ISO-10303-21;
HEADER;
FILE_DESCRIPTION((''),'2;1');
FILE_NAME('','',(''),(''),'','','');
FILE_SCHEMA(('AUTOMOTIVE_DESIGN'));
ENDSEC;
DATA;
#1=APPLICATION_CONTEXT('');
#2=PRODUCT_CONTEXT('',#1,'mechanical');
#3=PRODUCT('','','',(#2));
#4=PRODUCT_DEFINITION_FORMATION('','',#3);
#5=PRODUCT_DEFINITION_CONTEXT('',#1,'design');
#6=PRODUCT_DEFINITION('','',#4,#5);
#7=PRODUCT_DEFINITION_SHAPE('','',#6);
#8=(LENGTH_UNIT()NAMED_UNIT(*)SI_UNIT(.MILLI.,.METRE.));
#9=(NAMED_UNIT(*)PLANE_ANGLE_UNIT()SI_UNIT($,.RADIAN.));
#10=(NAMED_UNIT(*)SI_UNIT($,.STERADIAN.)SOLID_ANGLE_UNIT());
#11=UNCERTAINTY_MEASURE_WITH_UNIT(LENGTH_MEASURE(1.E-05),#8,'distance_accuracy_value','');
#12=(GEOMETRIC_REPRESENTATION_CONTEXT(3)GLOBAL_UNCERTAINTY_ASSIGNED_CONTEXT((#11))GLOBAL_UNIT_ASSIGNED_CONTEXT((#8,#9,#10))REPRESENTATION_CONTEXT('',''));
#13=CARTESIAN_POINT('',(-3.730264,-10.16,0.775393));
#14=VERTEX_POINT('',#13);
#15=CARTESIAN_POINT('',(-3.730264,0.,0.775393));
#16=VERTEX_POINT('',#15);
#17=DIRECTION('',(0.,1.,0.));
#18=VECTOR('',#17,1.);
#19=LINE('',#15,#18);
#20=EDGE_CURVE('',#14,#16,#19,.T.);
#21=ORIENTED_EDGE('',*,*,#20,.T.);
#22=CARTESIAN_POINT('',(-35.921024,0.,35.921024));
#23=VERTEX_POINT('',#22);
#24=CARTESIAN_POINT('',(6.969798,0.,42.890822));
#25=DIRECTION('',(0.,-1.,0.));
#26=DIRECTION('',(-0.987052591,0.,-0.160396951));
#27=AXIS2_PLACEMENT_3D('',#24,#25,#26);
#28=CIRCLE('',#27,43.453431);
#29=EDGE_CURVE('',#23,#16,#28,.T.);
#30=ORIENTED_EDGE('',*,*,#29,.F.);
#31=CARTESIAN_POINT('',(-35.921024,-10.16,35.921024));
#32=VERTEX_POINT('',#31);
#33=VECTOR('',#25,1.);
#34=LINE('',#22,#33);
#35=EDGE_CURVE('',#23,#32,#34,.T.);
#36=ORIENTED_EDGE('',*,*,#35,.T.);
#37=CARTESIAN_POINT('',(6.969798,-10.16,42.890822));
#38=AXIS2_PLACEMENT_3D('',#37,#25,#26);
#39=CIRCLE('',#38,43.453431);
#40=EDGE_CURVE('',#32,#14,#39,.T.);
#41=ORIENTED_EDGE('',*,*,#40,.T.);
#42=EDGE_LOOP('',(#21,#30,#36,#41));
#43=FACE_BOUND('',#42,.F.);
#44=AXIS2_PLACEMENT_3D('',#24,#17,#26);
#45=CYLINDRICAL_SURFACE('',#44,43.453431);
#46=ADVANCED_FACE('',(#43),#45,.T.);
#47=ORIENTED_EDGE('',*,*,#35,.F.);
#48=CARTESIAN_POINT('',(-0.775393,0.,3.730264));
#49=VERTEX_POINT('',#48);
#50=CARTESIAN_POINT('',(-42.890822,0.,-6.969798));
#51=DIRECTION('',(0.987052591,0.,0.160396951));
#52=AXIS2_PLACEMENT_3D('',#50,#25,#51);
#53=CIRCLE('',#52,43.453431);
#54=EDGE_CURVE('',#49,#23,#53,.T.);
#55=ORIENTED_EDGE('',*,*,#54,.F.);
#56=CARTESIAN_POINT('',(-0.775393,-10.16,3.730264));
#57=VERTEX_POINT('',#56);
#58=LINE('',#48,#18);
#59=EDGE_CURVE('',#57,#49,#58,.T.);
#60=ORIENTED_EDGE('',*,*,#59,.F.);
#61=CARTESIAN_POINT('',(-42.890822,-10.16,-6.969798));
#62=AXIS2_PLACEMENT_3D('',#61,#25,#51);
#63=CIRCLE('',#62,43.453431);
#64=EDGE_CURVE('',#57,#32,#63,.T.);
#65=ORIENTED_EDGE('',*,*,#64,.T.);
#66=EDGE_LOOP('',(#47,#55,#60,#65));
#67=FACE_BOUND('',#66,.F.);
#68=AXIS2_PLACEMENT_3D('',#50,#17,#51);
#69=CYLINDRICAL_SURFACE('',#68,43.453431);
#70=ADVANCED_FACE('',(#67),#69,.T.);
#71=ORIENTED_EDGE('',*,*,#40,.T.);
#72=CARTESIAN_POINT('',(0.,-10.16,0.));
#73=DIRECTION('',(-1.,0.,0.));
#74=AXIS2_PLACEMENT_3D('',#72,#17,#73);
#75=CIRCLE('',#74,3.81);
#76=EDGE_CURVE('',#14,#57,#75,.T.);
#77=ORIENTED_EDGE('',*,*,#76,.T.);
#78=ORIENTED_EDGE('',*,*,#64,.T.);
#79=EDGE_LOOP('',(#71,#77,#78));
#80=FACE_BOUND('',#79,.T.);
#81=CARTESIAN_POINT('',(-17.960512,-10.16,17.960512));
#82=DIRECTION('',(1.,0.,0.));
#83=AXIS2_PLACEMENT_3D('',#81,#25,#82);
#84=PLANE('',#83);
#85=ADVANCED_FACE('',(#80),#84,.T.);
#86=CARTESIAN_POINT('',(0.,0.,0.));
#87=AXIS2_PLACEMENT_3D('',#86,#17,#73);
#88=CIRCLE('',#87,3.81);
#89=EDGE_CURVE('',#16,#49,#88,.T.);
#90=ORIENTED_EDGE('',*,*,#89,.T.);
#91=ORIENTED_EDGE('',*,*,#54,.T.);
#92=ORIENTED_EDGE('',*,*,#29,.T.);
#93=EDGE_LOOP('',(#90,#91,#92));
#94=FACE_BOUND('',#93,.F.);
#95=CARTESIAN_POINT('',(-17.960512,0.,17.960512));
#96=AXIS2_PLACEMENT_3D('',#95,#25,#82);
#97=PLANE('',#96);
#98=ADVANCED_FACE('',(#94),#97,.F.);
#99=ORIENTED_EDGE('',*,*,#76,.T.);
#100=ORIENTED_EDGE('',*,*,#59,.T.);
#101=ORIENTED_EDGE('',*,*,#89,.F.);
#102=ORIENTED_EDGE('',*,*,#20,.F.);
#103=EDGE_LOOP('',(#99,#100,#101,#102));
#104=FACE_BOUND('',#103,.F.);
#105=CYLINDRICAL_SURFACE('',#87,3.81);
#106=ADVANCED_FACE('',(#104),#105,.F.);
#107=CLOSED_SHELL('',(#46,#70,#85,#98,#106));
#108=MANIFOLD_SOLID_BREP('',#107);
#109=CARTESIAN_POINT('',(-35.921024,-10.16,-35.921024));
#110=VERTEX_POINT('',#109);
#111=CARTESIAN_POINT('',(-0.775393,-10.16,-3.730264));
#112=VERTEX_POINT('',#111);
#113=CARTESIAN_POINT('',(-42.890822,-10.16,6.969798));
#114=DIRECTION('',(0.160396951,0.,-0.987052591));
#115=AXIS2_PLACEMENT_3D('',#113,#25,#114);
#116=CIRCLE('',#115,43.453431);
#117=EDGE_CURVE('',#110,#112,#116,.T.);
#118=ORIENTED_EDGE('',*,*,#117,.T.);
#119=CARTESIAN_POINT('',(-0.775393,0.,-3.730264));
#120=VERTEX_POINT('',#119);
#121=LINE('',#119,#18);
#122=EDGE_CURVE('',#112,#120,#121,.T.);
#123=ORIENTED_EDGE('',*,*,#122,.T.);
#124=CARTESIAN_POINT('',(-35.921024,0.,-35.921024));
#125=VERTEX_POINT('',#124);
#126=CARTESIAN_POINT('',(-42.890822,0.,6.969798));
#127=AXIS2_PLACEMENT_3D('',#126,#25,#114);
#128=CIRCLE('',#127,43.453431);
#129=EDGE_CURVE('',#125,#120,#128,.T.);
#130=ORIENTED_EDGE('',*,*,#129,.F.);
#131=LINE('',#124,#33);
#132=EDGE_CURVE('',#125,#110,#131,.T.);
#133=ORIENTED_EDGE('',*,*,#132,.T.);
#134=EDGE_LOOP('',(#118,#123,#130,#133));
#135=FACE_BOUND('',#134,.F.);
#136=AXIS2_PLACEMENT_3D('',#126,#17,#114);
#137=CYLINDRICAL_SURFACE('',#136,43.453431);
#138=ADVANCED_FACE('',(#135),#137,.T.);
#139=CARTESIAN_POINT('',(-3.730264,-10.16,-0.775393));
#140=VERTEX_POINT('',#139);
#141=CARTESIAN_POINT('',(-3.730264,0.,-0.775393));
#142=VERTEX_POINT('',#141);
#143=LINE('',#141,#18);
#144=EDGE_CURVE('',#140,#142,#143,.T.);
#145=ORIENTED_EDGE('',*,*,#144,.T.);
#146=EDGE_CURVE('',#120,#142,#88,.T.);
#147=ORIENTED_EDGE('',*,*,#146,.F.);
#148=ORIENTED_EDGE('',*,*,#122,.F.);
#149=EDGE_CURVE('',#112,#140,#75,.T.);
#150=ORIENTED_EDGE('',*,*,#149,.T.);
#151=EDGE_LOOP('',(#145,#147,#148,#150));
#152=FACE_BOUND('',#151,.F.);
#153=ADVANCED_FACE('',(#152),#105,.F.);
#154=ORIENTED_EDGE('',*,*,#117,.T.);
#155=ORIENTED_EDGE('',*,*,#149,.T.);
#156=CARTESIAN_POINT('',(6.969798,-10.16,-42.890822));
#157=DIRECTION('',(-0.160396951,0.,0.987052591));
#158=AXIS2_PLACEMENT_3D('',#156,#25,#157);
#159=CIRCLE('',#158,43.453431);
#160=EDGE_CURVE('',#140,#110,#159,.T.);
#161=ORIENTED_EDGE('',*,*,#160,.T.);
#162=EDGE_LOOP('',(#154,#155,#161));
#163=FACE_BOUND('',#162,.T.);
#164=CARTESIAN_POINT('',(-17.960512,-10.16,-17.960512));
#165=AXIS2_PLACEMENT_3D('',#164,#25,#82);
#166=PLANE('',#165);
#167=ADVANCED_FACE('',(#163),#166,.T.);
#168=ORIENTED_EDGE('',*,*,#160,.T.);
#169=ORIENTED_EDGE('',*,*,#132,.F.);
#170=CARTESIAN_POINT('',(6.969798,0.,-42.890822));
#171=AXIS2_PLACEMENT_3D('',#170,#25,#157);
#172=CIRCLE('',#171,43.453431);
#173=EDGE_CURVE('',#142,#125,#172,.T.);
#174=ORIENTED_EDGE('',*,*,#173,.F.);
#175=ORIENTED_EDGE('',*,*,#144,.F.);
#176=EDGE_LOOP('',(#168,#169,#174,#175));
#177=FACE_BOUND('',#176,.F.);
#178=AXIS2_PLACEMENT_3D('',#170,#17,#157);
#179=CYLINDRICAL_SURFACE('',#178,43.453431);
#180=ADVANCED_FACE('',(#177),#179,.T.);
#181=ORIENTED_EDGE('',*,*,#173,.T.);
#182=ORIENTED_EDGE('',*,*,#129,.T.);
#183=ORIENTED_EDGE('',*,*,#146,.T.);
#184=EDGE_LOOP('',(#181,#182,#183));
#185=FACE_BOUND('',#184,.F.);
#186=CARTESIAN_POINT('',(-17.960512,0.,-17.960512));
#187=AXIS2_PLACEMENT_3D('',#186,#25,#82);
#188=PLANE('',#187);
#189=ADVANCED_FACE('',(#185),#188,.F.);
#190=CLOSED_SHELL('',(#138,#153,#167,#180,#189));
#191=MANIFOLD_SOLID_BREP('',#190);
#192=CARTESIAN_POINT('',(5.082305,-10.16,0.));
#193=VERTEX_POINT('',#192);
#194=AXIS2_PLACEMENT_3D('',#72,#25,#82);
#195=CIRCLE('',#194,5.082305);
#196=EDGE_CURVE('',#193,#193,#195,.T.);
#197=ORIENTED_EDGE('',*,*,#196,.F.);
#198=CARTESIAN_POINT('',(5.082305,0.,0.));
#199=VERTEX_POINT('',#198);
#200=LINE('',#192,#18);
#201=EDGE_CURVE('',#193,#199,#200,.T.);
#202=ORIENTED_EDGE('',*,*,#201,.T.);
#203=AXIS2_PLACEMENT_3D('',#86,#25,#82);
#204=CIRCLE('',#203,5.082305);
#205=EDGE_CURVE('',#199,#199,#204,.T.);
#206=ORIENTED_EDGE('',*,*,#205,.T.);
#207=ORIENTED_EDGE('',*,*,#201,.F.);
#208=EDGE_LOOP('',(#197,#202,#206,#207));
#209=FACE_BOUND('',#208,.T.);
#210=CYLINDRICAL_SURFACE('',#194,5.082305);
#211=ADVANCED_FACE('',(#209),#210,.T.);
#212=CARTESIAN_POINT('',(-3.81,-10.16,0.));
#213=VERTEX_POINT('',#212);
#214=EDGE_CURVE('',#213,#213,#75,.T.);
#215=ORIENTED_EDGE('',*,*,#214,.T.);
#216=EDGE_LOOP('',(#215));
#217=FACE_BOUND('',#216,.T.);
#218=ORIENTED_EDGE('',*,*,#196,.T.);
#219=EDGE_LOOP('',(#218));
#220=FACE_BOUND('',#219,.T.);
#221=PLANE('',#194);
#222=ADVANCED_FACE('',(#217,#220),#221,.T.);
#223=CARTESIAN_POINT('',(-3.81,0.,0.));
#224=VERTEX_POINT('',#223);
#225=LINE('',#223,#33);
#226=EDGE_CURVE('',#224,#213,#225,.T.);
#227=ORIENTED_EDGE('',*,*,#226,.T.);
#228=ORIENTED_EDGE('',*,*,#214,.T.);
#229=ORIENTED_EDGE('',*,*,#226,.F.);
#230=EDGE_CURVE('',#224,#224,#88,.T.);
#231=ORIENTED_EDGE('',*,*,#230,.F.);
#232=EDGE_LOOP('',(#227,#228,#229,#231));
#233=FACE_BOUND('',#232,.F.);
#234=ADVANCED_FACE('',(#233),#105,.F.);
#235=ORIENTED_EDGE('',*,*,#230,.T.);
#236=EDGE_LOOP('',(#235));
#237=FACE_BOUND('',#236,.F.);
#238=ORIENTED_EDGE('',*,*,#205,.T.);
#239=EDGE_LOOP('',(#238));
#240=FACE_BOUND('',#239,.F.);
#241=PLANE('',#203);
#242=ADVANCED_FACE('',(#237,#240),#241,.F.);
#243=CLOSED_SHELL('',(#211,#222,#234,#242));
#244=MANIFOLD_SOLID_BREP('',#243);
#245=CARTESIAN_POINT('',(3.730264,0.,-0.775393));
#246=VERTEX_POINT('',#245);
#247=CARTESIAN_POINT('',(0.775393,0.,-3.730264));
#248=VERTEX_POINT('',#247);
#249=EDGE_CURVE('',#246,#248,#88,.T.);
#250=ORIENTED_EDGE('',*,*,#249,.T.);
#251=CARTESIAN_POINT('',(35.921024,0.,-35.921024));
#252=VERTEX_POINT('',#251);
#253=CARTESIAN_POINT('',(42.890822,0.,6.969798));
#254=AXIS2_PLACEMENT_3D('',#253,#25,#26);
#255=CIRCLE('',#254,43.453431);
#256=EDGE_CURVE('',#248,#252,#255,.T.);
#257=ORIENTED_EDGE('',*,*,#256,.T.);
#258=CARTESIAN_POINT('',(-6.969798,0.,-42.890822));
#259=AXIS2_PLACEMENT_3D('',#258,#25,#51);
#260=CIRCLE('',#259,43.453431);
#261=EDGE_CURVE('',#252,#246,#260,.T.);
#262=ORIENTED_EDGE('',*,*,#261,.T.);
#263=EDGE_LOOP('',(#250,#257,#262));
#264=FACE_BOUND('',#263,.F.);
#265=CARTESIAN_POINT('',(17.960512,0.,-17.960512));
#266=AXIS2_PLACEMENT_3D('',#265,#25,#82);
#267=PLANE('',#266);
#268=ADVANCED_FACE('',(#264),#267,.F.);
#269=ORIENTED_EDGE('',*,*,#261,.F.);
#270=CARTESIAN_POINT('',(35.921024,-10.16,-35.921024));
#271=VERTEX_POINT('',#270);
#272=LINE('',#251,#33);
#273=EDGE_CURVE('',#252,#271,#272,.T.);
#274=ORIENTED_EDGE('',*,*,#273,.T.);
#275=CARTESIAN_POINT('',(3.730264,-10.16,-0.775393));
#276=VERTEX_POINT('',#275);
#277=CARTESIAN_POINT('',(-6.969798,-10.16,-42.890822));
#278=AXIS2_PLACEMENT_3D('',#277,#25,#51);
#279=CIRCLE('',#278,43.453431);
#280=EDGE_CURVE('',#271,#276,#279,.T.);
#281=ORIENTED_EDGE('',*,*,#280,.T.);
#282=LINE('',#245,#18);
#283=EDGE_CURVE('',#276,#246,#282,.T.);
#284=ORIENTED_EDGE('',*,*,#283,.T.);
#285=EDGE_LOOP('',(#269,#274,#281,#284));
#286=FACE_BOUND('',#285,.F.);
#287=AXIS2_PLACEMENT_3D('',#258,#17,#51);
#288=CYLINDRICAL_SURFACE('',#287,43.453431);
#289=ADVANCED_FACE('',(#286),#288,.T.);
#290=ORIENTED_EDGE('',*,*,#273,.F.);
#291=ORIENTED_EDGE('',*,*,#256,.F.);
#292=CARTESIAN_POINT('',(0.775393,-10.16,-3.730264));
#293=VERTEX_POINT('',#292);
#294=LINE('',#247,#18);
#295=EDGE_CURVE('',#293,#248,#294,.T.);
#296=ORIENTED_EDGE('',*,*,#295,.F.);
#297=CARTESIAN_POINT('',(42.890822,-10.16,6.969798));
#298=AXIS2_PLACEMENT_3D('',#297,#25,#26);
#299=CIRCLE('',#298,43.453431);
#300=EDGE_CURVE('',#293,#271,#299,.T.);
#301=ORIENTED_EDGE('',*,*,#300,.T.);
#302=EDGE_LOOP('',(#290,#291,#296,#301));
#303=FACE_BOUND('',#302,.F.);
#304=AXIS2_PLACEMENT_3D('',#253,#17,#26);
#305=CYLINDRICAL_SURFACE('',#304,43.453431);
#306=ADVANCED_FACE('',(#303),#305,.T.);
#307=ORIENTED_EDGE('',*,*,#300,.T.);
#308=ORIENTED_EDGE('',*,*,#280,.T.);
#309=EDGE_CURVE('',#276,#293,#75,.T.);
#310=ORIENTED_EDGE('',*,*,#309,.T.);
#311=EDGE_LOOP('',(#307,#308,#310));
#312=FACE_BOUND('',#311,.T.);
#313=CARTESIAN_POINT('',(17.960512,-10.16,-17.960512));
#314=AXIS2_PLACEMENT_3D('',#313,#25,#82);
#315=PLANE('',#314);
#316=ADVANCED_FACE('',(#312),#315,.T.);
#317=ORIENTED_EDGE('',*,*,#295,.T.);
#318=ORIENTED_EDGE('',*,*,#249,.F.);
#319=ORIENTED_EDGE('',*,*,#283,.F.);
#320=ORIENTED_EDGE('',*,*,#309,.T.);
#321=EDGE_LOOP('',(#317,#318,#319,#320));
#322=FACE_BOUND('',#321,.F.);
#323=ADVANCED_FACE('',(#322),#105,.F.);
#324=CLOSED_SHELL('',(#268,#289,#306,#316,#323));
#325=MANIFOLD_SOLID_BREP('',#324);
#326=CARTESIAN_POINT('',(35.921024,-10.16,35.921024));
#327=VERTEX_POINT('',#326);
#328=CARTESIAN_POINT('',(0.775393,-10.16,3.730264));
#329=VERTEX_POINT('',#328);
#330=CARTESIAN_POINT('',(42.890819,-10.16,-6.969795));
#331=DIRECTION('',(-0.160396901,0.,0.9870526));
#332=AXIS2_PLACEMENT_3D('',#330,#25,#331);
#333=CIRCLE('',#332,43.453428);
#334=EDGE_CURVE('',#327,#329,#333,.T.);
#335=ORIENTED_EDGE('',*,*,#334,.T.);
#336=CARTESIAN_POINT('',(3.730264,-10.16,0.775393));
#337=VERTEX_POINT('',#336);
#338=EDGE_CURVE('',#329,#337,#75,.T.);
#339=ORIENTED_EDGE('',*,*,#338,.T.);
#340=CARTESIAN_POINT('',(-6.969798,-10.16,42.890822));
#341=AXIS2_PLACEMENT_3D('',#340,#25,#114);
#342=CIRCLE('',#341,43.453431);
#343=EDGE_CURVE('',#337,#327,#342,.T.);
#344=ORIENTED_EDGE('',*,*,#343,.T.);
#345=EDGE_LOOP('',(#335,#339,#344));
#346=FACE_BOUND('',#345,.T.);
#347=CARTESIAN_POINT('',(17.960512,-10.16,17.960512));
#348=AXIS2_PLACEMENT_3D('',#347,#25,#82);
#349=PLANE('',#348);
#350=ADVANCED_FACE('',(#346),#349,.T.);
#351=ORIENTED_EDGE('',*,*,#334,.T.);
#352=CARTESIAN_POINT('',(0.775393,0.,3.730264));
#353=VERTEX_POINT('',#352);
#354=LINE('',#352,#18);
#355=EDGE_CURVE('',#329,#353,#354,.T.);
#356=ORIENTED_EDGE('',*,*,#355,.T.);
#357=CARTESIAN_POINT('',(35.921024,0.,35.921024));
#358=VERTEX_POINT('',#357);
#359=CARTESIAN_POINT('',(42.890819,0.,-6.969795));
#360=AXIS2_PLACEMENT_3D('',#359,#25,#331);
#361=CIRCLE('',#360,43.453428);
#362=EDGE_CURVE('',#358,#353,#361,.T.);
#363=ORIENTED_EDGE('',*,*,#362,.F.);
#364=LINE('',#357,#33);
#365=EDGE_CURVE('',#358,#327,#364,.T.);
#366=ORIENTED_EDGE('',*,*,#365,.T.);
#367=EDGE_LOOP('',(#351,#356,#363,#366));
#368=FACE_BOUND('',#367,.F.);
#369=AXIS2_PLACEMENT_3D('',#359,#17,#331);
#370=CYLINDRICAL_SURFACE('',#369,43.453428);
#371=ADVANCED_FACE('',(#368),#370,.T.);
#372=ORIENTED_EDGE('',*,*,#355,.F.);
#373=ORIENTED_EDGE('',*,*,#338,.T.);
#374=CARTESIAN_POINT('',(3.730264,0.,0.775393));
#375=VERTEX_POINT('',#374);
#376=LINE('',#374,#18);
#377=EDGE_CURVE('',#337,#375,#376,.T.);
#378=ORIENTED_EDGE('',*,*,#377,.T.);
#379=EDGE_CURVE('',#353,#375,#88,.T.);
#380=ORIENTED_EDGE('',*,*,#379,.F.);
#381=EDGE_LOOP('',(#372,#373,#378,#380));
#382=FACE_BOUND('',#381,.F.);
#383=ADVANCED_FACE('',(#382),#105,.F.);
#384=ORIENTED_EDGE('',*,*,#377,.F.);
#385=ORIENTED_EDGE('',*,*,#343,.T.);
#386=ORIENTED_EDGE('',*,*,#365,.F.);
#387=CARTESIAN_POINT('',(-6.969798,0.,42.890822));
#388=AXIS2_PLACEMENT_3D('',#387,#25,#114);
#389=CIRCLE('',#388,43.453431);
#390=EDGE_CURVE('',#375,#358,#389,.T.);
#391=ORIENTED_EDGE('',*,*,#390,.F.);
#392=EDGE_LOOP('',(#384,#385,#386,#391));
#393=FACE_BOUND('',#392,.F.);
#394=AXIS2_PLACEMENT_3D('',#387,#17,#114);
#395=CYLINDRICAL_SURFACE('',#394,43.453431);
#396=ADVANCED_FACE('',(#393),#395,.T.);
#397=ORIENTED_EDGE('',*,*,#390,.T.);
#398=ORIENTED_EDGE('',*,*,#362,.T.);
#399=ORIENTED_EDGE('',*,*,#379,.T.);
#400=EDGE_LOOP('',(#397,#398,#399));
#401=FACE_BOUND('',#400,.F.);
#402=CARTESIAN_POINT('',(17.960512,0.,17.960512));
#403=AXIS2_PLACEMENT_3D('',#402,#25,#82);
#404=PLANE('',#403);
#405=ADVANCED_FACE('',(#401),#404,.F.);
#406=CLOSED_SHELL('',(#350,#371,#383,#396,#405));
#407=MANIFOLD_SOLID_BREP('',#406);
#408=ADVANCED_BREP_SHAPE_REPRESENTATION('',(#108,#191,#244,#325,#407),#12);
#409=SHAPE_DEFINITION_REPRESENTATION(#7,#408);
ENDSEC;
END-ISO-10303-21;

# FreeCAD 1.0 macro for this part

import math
import FreeCAD as App
import Part
import Sketcher
Q = App.Units.Quantity

doc = App.newDocument("Part")
params = doc.addObject("Spreadsheet::Sheet", "Params")
for row, (alias, value) in enumerate([
    ("pad1_length", "0.4 in"),
    ("pad2_length", "0.4 in"),
    ("sketch3_diameter", "0.3 in"),
    ("pad3_length", "1.47 in"),
], start=1):
    params.set(f"A{row}", alias)
    params.set(f"B{row}", "=" + value)
    params.setAlias(f"B{row}", alias)

body = doc.addObject("PartDesign::Body", "Body")
body.AllowCompound = True

# Sketch on XZ plane
sketch1 = body.newObject("Sketcher::SketchObject", "Sketch")
sketch1.AttachmentSupport = (doc.getObject("XZ_Plane"), [""])
sketch1.MapMode = "FlatFace"
sketch1.addGeometry([
    Part.ArcOfCircle(Part.Circle(App.Vector(-6.969798, 42.890822, 0), App.Vector(0, 0, 1), 43.453431), math.radians(-80.770063), math.radians(-9.229937)),  # 0
    Part.ArcOfCircle(Part.Circle(App.Vector(42.890819, -6.969795, 0), App.Vector(0, 0, 1), 43.453428), math.radians(99.229935), math.radians(170.770065)),  # 1
    Part.ArcOfCircle(Part.Circle(App.Vector(-42.890822, 6.969798, 0), App.Vector(0, 0, 1), 43.453431), math.radians(-80.770063), math.radians(-9.229937)),  # 2
    Part.ArcOfCircle(Part.Circle(App.Vector(6.969798, -42.890822, 0), App.Vector(0, 0, 1), 43.453431), math.radians(99.229937), math.radians(170.770063)),  # 3
    Part.ArcOfCircle(Part.Circle(App.Vector(-42.890822, -6.969798, 0), App.Vector(0, 0, 1), 43.453431), math.radians(9.229937), math.radians(80.770063)),  # 4
    Part.ArcOfCircle(Part.Circle(App.Vector(6.969798, 42.890822, 0), App.Vector(0, 0, 1), 43.453431), math.radians(-170.770063), math.radians(-99.229937)),  # 5
    Part.ArcOfCircle(Part.Circle(App.Vector(42.890822, 6.969798, 0), App.Vector(0, 0, 1), 43.453431), math.radians(-170.770063), math.radians(-99.229937)),  # 6
    Part.ArcOfCircle(Part.Circle(App.Vector(-6.969798, -42.890822, 0), App.Vector(0, 0, 1), 43.453431), math.radians(9.229937), math.radians(80.770063)),  # 7
], False)
sketch1.addConstraint([
    Sketcher.Constraint("Coincident", 0, 1, 1, 2),
    Sketcher.Constraint("Coincident", 1, 1, 0, 2),
    Sketcher.Constraint("Coincident", 2, 1, 3, 2),
    Sketcher.Constraint("Coincident", 3, 1, 2, 2),
    Sketcher.Constraint("Coincident", 4, 1, 5, 2),
    Sketcher.Constraint("Coincident", 5, 1, 4, 2),
    Sketcher.Constraint("Coincident", 6, 1, 7, 2),
    Sketcher.Constraint("Coincident", 7, 1, 6, 2),
    Sketcher.Constraint("Coincident", 0, 1, -1, 1),
    Sketcher.Constraint("Coincident", 3, 1, -1, 1),
    Sketcher.Constraint("Coincident", 4, 1, -1, 1),
    Sketcher.Constraint("Coincident", 6, 1, -1, 1),
    Sketcher.Constraint("Equal", 0, 2),
    Sketcher.Constraint("Equal", 2, 3),
    Sketcher.Constraint("Equal", 3, 4),
    Sketcher.Constraint("Equal", 4, 5),
    Sketcher.Constraint("Equal", 5, 6),
    Sketcher.Constraint("Equal", 6, 7),
    Sketcher.Constraint("Symmetric", 1, 3, 2, 3, -1, 1),
    Sketcher.Constraint("Symmetric", 5, 1, 7, 1, -1, 1),
    Sketcher.Constraint("Symmetric", 1, 1, 5, 1, -2),
    Sketcher.Constraint("Horizontal", 3, 3, 7, 3),
    Sketcher.Constraint("Radius", 0, 43.453431),
    Sketcher.Constraint("DistanceY", -1, 1, 0, 3, 42.890822),
    Sketcher.Constraint("DistanceX", -1, 1, 1, 3, 42.890819),
])
pad1 = body.newObject("PartDesign::Pad", "Pad")
pad1.Profile = sketch1
pad1.setExpression("Length", "Params.pad1_length")
body2 = doc.addObject("PartDesign::Body", "Body001")

# Sketch on XZ plane
sketch2 = body2.newObject("Sketcher::SketchObject", "Sketch001")
sketch2.AttachmentSupport = (doc.getObject("XZ_Plane001"), [""])
sketch2.MapMode = "FlatFace"
sketch2.AttachmentOffset = App.Placement(App.Vector(0, 0, 0.4 * 25.4), App.Rotation())
sketch2.addGeometry(Part.Circle(App.Vector(0, 0, 0), App.Vector(0, 0, 1), 5.082305), False)
sketch2.addConstraint([
    Sketcher.Constraint("Coincident", 0, 3, -1, 1),
    Sketcher.Constraint("Diameter", 0, 10.16461),
])
pad2 = body2.newObject("PartDesign::Pad", "Pad001")
pad2.Profile = sketch2
pad2.setExpression("Length", "Params.pad2_length")
pad2.Reversed = True
body3 = doc.addObject("PartDesign::Body", "Body002")

# Sketch on XZ plane
sketch3 = body3.newObject("Sketcher::SketchObject", "Sketch002")
sketch3.AttachmentSupport = (doc.getObject("XZ_Plane002"), [""])
sketch3.MapMode = "FlatFace"
sketch3.addGeometry(Part.Circle(App.Vector(0, 0, 0), App.Vector(0, 0, 1), 3.81), False)
sketch3.addConstraint([
    Sketcher.Constraint("Coincident", 0, 3, -1, 1),
    Sketcher.Constraint("Diameter", 0, Q("0.3 in")),
])
sketch3.setExpression("Constraints[1]", "Params.sketch3_diameter")
pad3 = body3.newObject("PartDesign::Pad", "Pad002")
pad3.Profile = sketch3
pad3.setExpression("Length", "Params.pad3_length")
body.AllowCompound = True
doc.recompute()

body4 = doc.addObject("PartDesign::Body", "Body003")
body4.BaseFeature = body3
boolean = body.newObject("PartDesign::Boolean", "Boolean")
boolean.Type = "Cut"
boolean.addObjects([body4])
doc.recompute()

boolean2 = body2.newObject("PartDesign::Boolean", "Boolean001")
boolean2.Type = "Cut"
boolean2.addObjects([body3])

doc.recompute()
